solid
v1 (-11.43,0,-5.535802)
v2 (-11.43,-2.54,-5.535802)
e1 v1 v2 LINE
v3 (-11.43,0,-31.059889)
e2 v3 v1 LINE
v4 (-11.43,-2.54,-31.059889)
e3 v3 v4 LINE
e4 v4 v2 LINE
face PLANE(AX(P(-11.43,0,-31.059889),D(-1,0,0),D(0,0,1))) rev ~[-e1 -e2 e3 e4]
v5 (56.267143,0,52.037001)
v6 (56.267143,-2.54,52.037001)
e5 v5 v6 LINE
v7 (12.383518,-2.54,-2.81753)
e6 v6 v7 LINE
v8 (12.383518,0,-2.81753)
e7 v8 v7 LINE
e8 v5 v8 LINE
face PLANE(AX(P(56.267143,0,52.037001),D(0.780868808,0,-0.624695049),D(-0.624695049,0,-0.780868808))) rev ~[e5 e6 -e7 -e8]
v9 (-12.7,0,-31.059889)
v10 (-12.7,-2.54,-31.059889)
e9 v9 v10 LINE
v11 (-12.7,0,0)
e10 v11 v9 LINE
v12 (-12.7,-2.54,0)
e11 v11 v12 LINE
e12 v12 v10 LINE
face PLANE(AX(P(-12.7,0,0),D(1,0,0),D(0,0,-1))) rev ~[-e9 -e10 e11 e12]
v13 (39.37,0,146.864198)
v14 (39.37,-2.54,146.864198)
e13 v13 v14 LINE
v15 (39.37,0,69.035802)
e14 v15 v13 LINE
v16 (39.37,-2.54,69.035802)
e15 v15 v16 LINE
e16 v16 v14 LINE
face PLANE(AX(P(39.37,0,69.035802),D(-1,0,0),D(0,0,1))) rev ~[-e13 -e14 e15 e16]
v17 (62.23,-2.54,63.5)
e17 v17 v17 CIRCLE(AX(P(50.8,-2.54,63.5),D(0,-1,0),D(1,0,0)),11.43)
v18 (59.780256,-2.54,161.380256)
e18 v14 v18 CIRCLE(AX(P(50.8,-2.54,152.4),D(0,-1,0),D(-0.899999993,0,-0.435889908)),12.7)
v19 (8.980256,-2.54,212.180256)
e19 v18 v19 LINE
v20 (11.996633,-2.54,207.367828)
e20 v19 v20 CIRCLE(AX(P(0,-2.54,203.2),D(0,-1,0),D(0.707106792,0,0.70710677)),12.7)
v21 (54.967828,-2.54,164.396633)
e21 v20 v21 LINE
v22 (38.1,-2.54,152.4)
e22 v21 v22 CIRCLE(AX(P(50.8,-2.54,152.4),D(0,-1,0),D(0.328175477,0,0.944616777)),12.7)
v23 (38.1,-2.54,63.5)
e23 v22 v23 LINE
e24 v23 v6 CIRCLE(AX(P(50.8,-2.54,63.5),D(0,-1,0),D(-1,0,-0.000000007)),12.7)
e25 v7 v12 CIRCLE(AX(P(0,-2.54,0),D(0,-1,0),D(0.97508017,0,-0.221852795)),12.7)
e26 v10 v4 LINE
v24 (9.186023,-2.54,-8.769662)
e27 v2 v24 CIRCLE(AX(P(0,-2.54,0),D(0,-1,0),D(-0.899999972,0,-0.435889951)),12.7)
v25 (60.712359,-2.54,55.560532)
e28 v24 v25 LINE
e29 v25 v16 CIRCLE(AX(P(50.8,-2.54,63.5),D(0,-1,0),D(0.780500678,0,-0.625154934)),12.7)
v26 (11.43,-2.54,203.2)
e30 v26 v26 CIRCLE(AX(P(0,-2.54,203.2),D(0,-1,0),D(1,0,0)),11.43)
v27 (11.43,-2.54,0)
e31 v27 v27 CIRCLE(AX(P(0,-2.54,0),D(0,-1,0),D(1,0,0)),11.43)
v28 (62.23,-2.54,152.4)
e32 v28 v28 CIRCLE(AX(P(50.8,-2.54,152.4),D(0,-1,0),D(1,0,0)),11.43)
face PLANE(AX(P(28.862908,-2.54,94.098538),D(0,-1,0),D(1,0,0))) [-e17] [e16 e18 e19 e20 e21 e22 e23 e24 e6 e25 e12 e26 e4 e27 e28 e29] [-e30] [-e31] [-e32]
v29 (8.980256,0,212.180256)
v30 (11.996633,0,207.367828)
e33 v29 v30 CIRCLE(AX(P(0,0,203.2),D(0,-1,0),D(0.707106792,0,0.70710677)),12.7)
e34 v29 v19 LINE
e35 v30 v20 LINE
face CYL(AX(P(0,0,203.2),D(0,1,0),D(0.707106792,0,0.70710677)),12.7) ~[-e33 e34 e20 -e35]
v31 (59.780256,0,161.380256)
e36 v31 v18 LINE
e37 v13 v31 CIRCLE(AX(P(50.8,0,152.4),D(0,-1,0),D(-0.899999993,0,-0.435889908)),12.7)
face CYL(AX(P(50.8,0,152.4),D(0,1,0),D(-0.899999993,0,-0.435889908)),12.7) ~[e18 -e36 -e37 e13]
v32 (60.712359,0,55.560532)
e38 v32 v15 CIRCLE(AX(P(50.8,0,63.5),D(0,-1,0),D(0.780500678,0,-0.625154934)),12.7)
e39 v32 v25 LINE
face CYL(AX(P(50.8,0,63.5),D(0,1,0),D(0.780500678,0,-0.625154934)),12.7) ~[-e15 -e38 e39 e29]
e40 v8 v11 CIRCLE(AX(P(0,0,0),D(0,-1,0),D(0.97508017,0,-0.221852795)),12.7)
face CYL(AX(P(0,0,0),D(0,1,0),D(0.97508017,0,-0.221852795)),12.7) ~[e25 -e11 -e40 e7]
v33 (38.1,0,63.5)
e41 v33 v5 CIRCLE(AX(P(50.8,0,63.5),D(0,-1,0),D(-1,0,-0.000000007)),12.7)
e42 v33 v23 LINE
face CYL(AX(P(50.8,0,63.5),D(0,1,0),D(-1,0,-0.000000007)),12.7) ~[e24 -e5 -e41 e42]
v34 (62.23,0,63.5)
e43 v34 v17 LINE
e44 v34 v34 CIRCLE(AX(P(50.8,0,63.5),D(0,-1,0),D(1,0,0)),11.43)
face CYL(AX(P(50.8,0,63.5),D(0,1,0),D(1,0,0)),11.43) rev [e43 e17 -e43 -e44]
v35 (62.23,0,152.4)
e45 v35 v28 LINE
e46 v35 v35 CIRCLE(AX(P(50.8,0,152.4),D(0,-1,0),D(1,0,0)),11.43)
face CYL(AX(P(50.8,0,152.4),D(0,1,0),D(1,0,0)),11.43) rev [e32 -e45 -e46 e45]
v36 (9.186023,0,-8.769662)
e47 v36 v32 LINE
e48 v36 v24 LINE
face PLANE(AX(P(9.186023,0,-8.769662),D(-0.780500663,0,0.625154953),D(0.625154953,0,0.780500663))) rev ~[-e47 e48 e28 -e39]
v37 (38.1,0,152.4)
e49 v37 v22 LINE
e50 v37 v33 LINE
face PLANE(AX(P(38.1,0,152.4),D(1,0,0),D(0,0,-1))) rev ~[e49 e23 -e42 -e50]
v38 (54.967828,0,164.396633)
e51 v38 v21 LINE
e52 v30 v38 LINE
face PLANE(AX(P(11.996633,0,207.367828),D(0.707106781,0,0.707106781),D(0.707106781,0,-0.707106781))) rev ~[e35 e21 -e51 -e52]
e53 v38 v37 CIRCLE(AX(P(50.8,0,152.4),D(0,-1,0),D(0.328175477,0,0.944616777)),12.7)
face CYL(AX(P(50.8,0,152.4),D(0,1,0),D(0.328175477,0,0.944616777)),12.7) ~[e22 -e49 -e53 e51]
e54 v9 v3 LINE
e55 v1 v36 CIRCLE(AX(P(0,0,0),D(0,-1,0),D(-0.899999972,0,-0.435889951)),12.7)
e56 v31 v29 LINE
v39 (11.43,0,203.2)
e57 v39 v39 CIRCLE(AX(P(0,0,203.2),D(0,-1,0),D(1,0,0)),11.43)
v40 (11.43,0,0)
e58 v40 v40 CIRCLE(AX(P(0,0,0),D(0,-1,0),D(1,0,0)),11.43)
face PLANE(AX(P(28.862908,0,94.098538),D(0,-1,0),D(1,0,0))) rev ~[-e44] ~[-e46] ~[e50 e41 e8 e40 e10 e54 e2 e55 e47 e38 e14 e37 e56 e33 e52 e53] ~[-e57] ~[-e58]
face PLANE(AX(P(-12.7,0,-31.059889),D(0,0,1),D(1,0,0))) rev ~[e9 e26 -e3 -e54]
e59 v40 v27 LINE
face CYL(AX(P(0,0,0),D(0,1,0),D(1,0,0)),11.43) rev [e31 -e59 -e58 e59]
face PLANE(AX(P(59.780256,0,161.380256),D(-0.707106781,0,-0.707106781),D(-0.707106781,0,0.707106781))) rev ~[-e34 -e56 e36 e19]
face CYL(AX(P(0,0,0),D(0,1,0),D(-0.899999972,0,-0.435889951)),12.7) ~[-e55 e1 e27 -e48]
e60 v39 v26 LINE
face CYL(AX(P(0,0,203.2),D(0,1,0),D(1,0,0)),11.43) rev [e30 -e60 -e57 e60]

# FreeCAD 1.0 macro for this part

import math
import FreeCAD as App
import Part
import Sketcher
Q = App.Units.Quantity

doc = App.newDocument("Part")
body = doc.addObject("PartDesign::Body", "Body")

# Sketch on XZ plane
sketch1 = body.newObject("Sketcher::SketchObject", "Sketch")
sketch1.AttachmentSupport = (doc.getObject("XZ_Plane"), [""])
sketch1.MapMode = "FlatFace"
sketch1.addGeometry([
    Part.LineSegment(App.Vector(56.267143, 52.037001, 0), App.Vector(12.383518, -2.81753, 0)),  # 0
    Part.ArcOfCircle(Part.Circle(App.Vector(0, 0, 0), App.Vector(0, 0, 1), 12.7), math.radians(-12.81788), math.radians(180.000002)),  # 1
    Part.LineSegment(App.Vector(-12.7, 0, 0), App.Vector(-12.7, -31.059889, 0)),  # 2
    Part.LineSegment(App.Vector(-12.7, -31.059889, 0), App.Vector(-11.43, -31.059889, 0)),  # 3
    Part.LineSegment(App.Vector(-11.43, -31.059889, 0), App.Vector(-11.43, -5.535802, 0)),  # 4
    Part.ArcOfCircle(Part.Circle(App.Vector(0, 0, 0), App.Vector(0, 0, 1), 12.7), math.radians(-154.158064), math.radians(-43.671649)),  # 5
    Part.LineSegment(App.Vector(9.186023, -8.769662, 0), App.Vector(60.712359, 55.560532, 0)),  # 6
    Part.ArcOfCircle(Part.Circle(App.Vector(50.8, 63.5, 0), App.Vector(0, 0, 1), 12.7), math.radians(-38.69356), math.radians(154.158066)),  # 7
    Part.LineSegment(App.Vector(39.37, 69.035802, 0), App.Vector(39.37, 146.864198, 0)),  # 8
    Part.ArcOfCircle(Part.Circle(App.Vector(50.8, 152.4, 0), App.Vector(0, 0, 1), 12.7), math.radians(-154.158066), math.radians(45)),  # 9
    Part.LineSegment(App.Vector(59.780256, 161.380256, 0), App.Vector(8.980256, 212.180256, 0)),  # 10
    Part.ArcOfCircle(Part.Circle(App.Vector(0, 203.2, 0), App.Vector(0, 0, 1), 12.7), math.radians(44.999999), math.radians(379.158069)),  # 11
    Part.LineSegment(App.Vector(11.996633, 207.367828, 0), App.Vector(54.967828, 164.396633, 0)),  # 12
    Part.ArcOfCircle(Part.Circle(App.Vector(50.8, 152.4, 0), App.Vector(0, 0, 1), 12.7), math.radians(70.841928), math.radians(180.000001)),  # 13
    Part.LineSegment(App.Vector(38.1, 152.4, 0), App.Vector(38.1, 63.5, 0)),  # 14
    Part.ArcOfCircle(Part.Circle(App.Vector(50.8, 63.5, 0), App.Vector(0, 0, 1), 12.7), math.radians(-180), math.radians(-64.501739)),  # 15
    Part.Circle(App.Vector(0, 0, 0), App.Vector(0, 0, 1), 11.43),  # 16
    Part.Circle(App.Vector(50.8, 63.5, 0), App.Vector(0, 0, 1), 11.43),  # 17
    Part.Circle(App.Vector(0, 203.2, 0), App.Vector(0, 0, 1), 11.43),  # 18
    Part.Circle(App.Vector(50.8, 152.4, 0), App.Vector(0, 0, 1), 11.43),  # 19
], False)
sketch1.addConstraint([
    Sketcher.Constraint("Coincident", 0, 2, 1, 1),
    Sketcher.Constraint("Coincident", 1, 2, 2, 1),
    Sketcher.Constraint("Coincident", 2, 2, 3, 1),
    Sketcher.Constraint("Coincident", 3, 2, 4, 1),
    Sketcher.Constraint("Coincident", 4, 2, 5, 1),
    Sketcher.Constraint("Coincident", 5, 2, 6, 1),
    Sketcher.Constraint("Coincident", 6, 2, 7, 1),
    Sketcher.Constraint("Coincident", 7, 2, 8, 1),
    Sketcher.Constraint("Coincident", 8, 2, 9, 1),
    Sketcher.Constraint("Coincident", 9, 2, 10, 1),
    Sketcher.Constraint("Coincident", 10, 2, 11, 1),
    Sketcher.Constraint("Coincident", 11, 2, 12, 1),
    Sketcher.Constraint("Coincident", 12, 2, 13, 1),
    Sketcher.Constraint("Coincident", 13, 2, 14, 1),
    Sketcher.Constraint("Coincident", 14, 2, 15, 1),
    Sketcher.Constraint("Coincident", 15, 2, 0, 1),
    Sketcher.Constraint("Vertical", 2),
    Sketcher.Constraint("Horizontal", 3),
    Sketcher.Constraint("Vertical", 4),
    Sketcher.Constraint("Vertical", 8),
    Sketcher.Constraint("Vertical", 14),
    Sketcher.Constraint("Coincident", 1, 3, -1, 1),
    Sketcher.Constraint("Coincident", 5, 3, -1, 1),
    Sketcher.Constraint("Coincident", 16, 3, -1, 1),
    Sketcher.Constraint("Coincident", 13, 3, 9, 3),
    Sketcher.Constraint("Coincident", 15, 3, 7, 3),
    Sketcher.Constraint("Coincident", 17, 3, 7, 3),
    Sketcher.Constraint("Coincident", 18, 3, 11, 3),
    Sketcher.Constraint("Coincident", 19, 3, 9, 3),
    Sketcher.Constraint("PointOnObject", 11, 3, -2),
    Sketcher.Constraint("PointOnObject", 1, 2, -1),
    Sketcher.Constraint("Diameter", 16, Q("0.9 in")),
    Sketcher.Constraint("Diameter", 17, Q("0.9 in")),
    Sketcher.Constraint("Diameter", 18, Q("0.9 in")),
    Sketcher.Constraint("Diameter", 19, Q("0.9 in")),
    Sketcher.Constraint("Radius", 1, Q("0.5 in")),
    Sketcher.Constraint("Radius", 5, Q("0.5 in")),
    Sketcher.Constraint("Radius", 7, Q("0.5 in")),
    Sketcher.Constraint("Radius", 9, Q("0.5 in")),
    Sketcher.Constraint("Radius", 11, Q("0.5 in")),
    Sketcher.Constraint("Radius", 13, Q("0.5 in")),
    Sketcher.Constraint("Radius", 15, Q("0.5 in")),
    Sketcher.Constraint("DistanceY", 14, 2, 14, 1, Q("3.5 in")),
    Sketcher.Constraint("DistanceX", -1, 1, 7, 3, Q("2 in")),
    Sketcher.Constraint("DistanceY", -1, 1, 9, 3, Q("6 in")),
    Sketcher.Constraint("DistanceY", -1, 1, 11, 3, Q("8 in")),
    Sketcher.Constraint("DistanceY", -1, 1, 13, 2, Q("6 in")),
    Sketcher.Constraint("DistanceX", 10, 2, 9, 2, Q("2 in")),
    Sketcher.Constraint("DistanceX", 3, 1, 3, 2, Q("0.05 in")),
    Sketcher.Constraint("DistanceY", -1, 1, 7, 3, Q("2.5 in")),
    Sketcher.Constraint("DistanceX", -1, 1, 7, 2, Q("1.55 in")),
    Sketcher.Constraint("DistanceY", 2, 2, 2, 1, Q("31.059889 mm")),
    Sketcher.Constraint("DistanceY", -1, 1, 15, 2, Q("52.037001 mm")),
    Sketcher.Constraint("DistanceY", 0, 2, -1, 1, Q("2.81753 mm")),
    Sketcher.Constraint("DistanceX", -1, 1, 6, 2, Q("60.712359 mm")),
    Sketcher.Constraint("DistanceY", 5, 2, 4, 2, Q("3.23386 mm")),
    Sketcher.Constraint("DistanceY", 8, 2, 9, 2, Q("14.516058 mm")),
    Sketcher.Constraint("DistanceY", 11, 2, 10, 2, Q("4.812428 mm")),
    Sketcher.Constraint("DistanceX", 12, 2, 9, 2, Q("4.812428 mm")),
])
pad1 = body.newObject("PartDesign::Pad", "Pad")
pad1.Profile = sketch1
pad1.Length = Q("0.1 in")

doc.recompute()
